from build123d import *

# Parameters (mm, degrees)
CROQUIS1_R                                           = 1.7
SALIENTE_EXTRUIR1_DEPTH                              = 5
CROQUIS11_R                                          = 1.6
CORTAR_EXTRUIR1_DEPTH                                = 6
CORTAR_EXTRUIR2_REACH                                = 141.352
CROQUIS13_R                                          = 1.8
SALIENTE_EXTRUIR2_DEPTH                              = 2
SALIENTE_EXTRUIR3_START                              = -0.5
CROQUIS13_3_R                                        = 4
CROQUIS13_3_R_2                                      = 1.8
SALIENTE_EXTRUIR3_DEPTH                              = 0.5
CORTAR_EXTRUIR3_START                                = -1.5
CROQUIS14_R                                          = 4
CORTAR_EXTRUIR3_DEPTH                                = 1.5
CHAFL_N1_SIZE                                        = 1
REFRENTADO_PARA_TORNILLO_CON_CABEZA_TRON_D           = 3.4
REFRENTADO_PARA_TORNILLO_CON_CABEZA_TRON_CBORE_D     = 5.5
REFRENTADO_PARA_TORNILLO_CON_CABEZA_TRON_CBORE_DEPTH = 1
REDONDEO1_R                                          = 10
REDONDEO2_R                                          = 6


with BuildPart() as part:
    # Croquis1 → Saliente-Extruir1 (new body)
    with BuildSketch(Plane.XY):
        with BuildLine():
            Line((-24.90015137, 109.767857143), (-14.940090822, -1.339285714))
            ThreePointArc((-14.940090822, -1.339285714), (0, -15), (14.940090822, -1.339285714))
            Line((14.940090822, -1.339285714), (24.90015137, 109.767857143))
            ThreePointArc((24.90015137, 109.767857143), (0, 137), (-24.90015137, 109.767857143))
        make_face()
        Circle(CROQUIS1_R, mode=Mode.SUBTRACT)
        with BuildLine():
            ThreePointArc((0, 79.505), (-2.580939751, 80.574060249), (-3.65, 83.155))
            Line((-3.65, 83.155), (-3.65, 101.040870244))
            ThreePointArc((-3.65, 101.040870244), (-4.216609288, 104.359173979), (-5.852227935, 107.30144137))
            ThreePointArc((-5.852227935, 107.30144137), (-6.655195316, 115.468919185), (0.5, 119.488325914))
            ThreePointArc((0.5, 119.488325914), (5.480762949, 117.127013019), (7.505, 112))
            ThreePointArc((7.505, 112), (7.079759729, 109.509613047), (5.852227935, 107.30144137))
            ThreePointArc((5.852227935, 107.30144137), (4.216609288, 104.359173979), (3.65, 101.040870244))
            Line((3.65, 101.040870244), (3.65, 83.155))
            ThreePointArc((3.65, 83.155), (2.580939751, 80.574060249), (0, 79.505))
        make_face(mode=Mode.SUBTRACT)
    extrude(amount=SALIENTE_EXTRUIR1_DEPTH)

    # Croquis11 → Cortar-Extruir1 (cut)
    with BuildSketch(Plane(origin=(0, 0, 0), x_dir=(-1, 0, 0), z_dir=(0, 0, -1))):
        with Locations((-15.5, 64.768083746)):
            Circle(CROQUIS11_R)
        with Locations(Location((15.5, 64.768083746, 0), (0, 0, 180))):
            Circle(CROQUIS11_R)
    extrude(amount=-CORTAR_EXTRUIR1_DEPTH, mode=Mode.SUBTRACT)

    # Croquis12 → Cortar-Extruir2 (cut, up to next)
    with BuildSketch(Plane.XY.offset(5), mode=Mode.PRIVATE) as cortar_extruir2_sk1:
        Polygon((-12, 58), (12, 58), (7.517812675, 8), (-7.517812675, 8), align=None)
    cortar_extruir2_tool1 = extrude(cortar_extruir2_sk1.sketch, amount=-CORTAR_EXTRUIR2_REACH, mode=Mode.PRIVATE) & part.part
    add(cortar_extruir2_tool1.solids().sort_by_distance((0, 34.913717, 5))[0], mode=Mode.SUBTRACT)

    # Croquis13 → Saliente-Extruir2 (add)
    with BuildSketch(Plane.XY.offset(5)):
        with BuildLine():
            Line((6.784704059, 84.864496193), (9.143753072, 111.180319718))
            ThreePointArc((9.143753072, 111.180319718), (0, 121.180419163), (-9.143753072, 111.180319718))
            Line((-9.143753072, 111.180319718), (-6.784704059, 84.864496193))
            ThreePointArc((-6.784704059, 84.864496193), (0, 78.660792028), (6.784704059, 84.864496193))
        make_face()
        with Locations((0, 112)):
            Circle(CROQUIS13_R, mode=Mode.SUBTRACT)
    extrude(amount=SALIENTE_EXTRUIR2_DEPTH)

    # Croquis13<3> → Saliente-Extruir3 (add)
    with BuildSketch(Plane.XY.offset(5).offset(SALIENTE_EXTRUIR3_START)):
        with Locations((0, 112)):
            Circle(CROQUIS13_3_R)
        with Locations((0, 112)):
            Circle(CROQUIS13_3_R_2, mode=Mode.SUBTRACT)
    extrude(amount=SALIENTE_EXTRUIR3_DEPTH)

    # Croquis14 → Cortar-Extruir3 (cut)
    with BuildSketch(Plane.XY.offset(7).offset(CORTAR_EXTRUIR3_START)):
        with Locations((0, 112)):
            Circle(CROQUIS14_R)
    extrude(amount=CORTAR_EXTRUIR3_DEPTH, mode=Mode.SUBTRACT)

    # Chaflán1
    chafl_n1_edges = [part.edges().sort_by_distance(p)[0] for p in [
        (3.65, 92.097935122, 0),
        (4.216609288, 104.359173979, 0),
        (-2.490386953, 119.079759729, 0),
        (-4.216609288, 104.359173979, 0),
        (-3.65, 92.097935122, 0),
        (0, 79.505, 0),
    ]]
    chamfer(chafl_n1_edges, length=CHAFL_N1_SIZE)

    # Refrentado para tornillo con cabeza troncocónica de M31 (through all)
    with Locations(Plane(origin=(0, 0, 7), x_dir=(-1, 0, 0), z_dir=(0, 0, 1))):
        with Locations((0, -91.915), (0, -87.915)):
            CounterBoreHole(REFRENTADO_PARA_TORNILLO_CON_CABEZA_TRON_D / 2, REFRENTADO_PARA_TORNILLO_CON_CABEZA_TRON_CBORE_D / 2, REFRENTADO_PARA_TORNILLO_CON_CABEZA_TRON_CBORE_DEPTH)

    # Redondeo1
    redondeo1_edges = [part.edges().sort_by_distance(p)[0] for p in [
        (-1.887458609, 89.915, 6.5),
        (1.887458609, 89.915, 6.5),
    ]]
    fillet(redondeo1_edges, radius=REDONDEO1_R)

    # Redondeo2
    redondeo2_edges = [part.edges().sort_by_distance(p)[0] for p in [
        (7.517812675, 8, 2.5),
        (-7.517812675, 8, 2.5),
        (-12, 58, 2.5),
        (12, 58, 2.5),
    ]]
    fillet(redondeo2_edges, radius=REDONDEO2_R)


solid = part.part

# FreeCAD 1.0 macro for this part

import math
import FreeCAD as App
import Part
import Sketcher


def edges_at(feature, points):
    """Names of the edges that pass closest to the given points."""
    edges = feature.Shape.Edges
    near = lambda p: min(range(len(edges)), key=lambda i: edges[i].distToShape(Part.Vertex(*p))[0])
    return sorted({f"Edge{near(p) + 1}" for p in points})


def add_polygon(sketch, points):
    """Adds a closed chain of lines whose ends are joined by coincident constraints."""
    first, n = sketch.GeometryCount, len(points)
    for a, b in zip(points, points[1:] + points[:1]):
        sketch.addGeometry(Part.LineSegment(App.Vector(*a, 0), App.Vector(*b, 0)), False)
    for i in range(n):
        sketch.addConstraint(Sketcher.Constraint("Coincident", first + i, 2, first + (i + 1) % n, 1))

doc = App.newDocument("Part")
body = doc.addObject("PartDesign::Body", "Body")

sketch1 = doc.addObject("Sketcher::SketchObject", "Sketch")
body.addObject(sketch1)
sketch1.AttachmentSupport = (doc.XY_Plane, [""])
sketch1.MapMode = "FlatFace"
sketch1.addGeometry(Part.LineSegment(App.Vector(-24.900151, 109.767857, 0), App.Vector(-14.940091, -1.339286, 0)), False)
sketch1.addGeometry(Part.ArcOfCircle(Part.Circle(App.Vector(0, 0, 0), App.Vector(0, 0, 1), 15), math.radians(-174.877484), math.radians(-5.122516)), False)
sketch1.addGeometry(Part.LineSegment(App.Vector(14.940091, -1.339286, 0), App.Vector(24.900151, 109.767857, 0)), False)
sketch1.addGeometry(Part.ArcOfCircle(Part.Circle(App.Vector(0, 112, 0), App.Vector(0, 0, 1), 25), math.radians(-5.122516), math.radians(185.122516)), False)
sketch1.addGeometry(Part.Circle(App.Vector(0, 0, 0), App.Vector(0, 0, 1), 1.7), False)
sketch1.addGeometry(Part.ArcOfCircle(Part.Circle(App.Vector(0, 83.155, 0), App.Vector(0, 0, 1), 3.65), math.radians(-90), math.radians(0)), False)
sketch1.addGeometry(Part.ArcOfCircle(Part.Circle(App.Vector(0, 83.155, 0), App.Vector(0, 0, 1), 3.65), math.radians(-180), math.radians(-90)), False)
sketch1.addGeometry(Part.LineSegment(App.Vector(-3.65, 83.155, 0), App.Vector(-3.65, 101.04087, 0)), False)
sketch1.addGeometry(Part.ArcOfCircle(Part.Circle(App.Vector(-13.65, 101.04087, 0), App.Vector(0, 0, 1), 10), math.radians(0), math.radians(38.759819)), False)
sketch1.addGeometry(Part.ArcOfCircle(Part.Circle(App.Vector(0, 112, 0), App.Vector(0, 0, 1), 7.505), math.radians(86.179997), math.radians(218.759819)), False)
sketch1.addGeometry(Part.ArcOfCircle(Part.Circle(App.Vector(0, 112, 0), App.Vector(0, 0, 1), 7.505), math.radians(0), math.radians(86.179997)), False)
sketch1.addGeometry(Part.ArcOfCircle(Part.Circle(App.Vector(0, 112, 0), App.Vector(0, 0, 1), 7.505), math.radians(-38.759819), math.radians(0)), False)
sketch1.addGeometry(Part.ArcOfCircle(Part.Circle(App.Vector(13.65, 101.04087, 0), App.Vector(0, 0, 1), 10), math.radians(141.240181), math.radians(180)), False)
sketch1.addGeometry(Part.LineSegment(App.Vector(3.65, 101.04087, 0), App.Vector(3.65, 83.155, 0)), False)
sketch1.addConstraint(Sketcher.Constraint("Tangent", 0, 2, 1, 1))
sketch1.addConstraint(Sketcher.Constraint("Tangent", 1, 2, 2, 1))
sketch1.addConstraint(Sketcher.Constraint("Tangent", 2, 2, 3, 1))
sketch1.addConstraint(Sketcher.Constraint("Tangent", 3, 2, 0, 1))
sketch1.addConstraint(Sketcher.Constraint("Tangent", 5, 1, 6, 2))
sketch1.addConstraint(Sketcher.Constraint("Tangent", 6, 1, 7, 1))
sketch1.addConstraint(Sketcher.Constraint("Tangent", 7, 2, 8, 1))
sketch1.addConstraint(Sketcher.Constraint("Tangent", 8, 2, 9, 2))
sketch1.addConstraint(Sketcher.Constraint("Tangent", 9, 1, 10, 2))
sketch1.addConstraint(Sketcher.Constraint("Tangent", 10, 1, 11, 2))
sketch1.addConstraint(Sketcher.Constraint("Tangent", 11, 1, 12, 1))
sketch1.addConstraint(Sketcher.Constraint("Tangent", 12, 2, 13, 1))
sketch1.addConstraint(Sketcher.Constraint("Tangent", 13, 2, 5, 2))
sketch1.addConstraint(Sketcher.Constraint("Vertical", 7))
sketch1.addConstraint(Sketcher.Constraint("Vertical", 13))
sketch1.addConstraint(Sketcher.Constraint("Coincident", 1, 3, -1, 1))
sketch1.addConstraint(Sketcher.Constraint("Coincident", 4, 3, -1, 1))
sketch1.addConstraint(Sketcher.Constraint("Coincident", 9, 3, 3, 3))
sketch1.addConstraint(Sketcher.Constraint("Coincident", 11, 3, 3, 3))
sketch1.addConstraint(Sketcher.Constraint("Equal", 5, 6))
sketch1.addConstraint(Sketcher.Constraint("Equal", 8, 12))
sketch1.addConstraint(Sketcher.Constraint("Symmetric", 8, 3, 12, 3, -2))
sketch1.addConstraint(Sketcher.Constraint("PointOnObject", 5, 1, -2))
sketch1.addConstraint(Sketcher.Constraint("Horizontal", 11, 3, 10, 1))
sketch1.addConstraint(Sketcher.Constraint("Radius", 1, 15.0))
sketch1.addConstraint(Sketcher.Constraint("Radius", 3, 25.0))
sketch1.addConstraint(Sketcher.Constraint("Radius", 8, 10.0))
sketch1.addConstraint(Sketcher.Constraint("Diameter", 4, 3.4))
sketch1.addConstraint(Sketcher.Constraint("Radius", 5, 3.65))
sketch1.addConstraint(Sketcher.Constraint("DistanceY", -1, 1, 3, 3, 112.0))
sketch1.addConstraint(Sketcher.Constraint("Radius", 9, 7.505))
sketch1.addConstraint(Sketcher.Constraint("DistanceX", -1, 1, 9, 1, 0.5))
sketch1.addConstraint(Sketcher.Constraint("DistanceY", -1, 1, 5, 3, 83.155))
pad1 = doc.addObject("PartDesign::Pad", "Pad")
body.addObject(pad1)
pad1.Profile = sketch1
pad1.Length = 5

sketch2 = doc.addObject("Sketcher::SketchObject", "Sketch001")
body.addObject(sketch2)
sketch2.AttachmentSupport = (doc.XY_Plane, [""])
sketch2.MapMode = "FlatFace"
sketch2.addGeometry(Part.Circle(App.Vector(15.5, 64.768084, 0), App.Vector(0, 0, 1), 1.6), False)
sketch2.addGeometry(Part.Circle(App.Vector(-15.5, 64.768084, 0), App.Vector(0, 0, 1), 1.6), False)
sketch2.addConstraint(Sketcher.Constraint("Equal", 0, 1))
sketch2.addConstraint(Sketcher.Constraint("Symmetric", 0, 3, 1, 3, -2))
sketch2.addConstraint(Sketcher.Constraint("Diameter", 0, 3.2))
sketch2.addConstraint(Sketcher.Constraint("DistanceX", 1, 3, 0, 3, 31.0))
sketch2.addConstraint(Sketcher.Constraint("DistanceY", -1, 1, 0, 3, 64.768084))
pocket1 = doc.addObject("PartDesign::Pocket", "Pocket")
body.addObject(pocket1)
pocket1.Profile = sketch2
pocket1.Length = 6
pocket1.Reversed = True

sketch3 = doc.addObject("Sketcher::SketchObject", "Sketch002")
body.addObject(sketch3)
sketch3.AttachmentSupport = (doc.XY_Plane, [""])
sketch3.MapMode = "FlatFace"
sketch3.AttachmentOffset = App.Placement(App.Vector(0, 0, 5), App.Rotation())
add_polygon(sketch3, [(12, 58), (-12, 58), (-7.517813, 8), (7.517813, 8)])
sketch3.addConstraint(Sketcher.Constraint("Horizontal", 0))
sketch3.addConstraint(Sketcher.Constraint("Horizontal", 2))
sketch3.addConstraint(Sketcher.Constraint("Equal", 1, 3))
sketch3.addConstraint(Sketcher.Constraint("DistanceX", 0, 2, 0, 1, 24.0))
sketch3.addConstraint(Sketcher.Constraint("DistanceX", 0, 2, -1, 1, 12.0))
sketch3.addConstraint(Sketcher.Constraint("DistanceY", -1, 1, 0, 2, 58.0))
sketch3.addConstraint(Sketcher.Constraint("DistanceY", -1, 1, 1, 2, 8.0))
sketch3.addConstraint(Sketcher.Constraint("Distance", 1, 50.200498))
pocket2 = doc.addObject("PartDesign::Pocket", "Pocket001")
body.addObject(pocket2)
pocket2.Profile = sketch3
pocket2.Type = "UpToFirst"

sketch4 = doc.addObject("Sketcher::SketchObject", "Sketch003")
body.addObject(sketch4)
sketch4.AttachmentSupport = (doc.XY_Plane, [""])
sketch4.MapMode = "FlatFace"
sketch4.AttachmentOffset = App.Placement(App.Vector(0, 0, 5), App.Rotation())
sketch4.addGeometry(Part.LineSegment(App.Vector(6.784704, 84.864496, 0), App.Vector(9.143753, 111.18032, 0)), False)
sketch4.addGeometry(Part.ArcOfCircle(Part.Circle(App.Vector(0, 112, 0), App.Vector(0, 0, 1), 9.180419), math.radians(-5.122516), math.radians(185.122516)), False)
sketch4.addGeometry(Part.LineSegment(App.Vector(-9.143753, 111.18032, 0), App.Vector(-6.784704, 84.864496, 0)), False)
sketch4.addGeometry(Part.ArcOfCircle(Part.Circle(App.Vector(0, 85.472702, 0), App.Vector(0, 0, 1), 6.81191), math.radians(-174.877484), math.radians(-5.122516)), False)
sketch4.addGeometry(Part.Circle(App.Vector(0, 112, 0), App.Vector(0, 0, 1), 1.8), False)
sketch4.addConstraint(Sketcher.Constraint("Tangent", 0, 2, 1, 1))
sketch4.addConstraint(Sketcher.Constraint("Tangent", 1, 2, 2, 1))
sketch4.addConstraint(Sketcher.Constraint("Tangent", 2, 2, 3, 1))
sketch4.addConstraint(Sketcher.Constraint("Tangent", 3, 2, 0, 1))
sketch4.addConstraint(Sketcher.Constraint("Coincident", 4, 3, 1, 3))
sketch4.addConstraint(Sketcher.Constraint("Symmetric", 0, 2, 1, 2, -2))
sketch4.addConstraint(Sketcher.Constraint("Diameter", 4, 3.6))
sketch4.addConstraint(Sketcher.Constraint("DistanceY", -1, 1, 1, 3, 112.0))
sketch4.addConstraint(Sketcher.Constraint("Radius", 1, 9.180419))
sketch4.addConstraint(Sketcher.Constraint("Radius", 3, 6.81191))
sketch4.addConstraint(Sketcher.Constraint("Distance", 0, 26.421349))
pad2 = doc.addObject("PartDesign::Pad", "Pad001")
body.addObject(pad2)
pad2.Profile = sketch4
pad2.Length = 2

sketch5 = doc.addObject("Sketcher::SketchObject", "Sketch004")
body.addObject(sketch5)
sketch5.AttachmentSupport = (doc.XY_Plane, [""])
sketch5.MapMode = "FlatFace"
sketch5.AttachmentOffset = App.Placement(App.Vector(0, 0, 4.5), App.Rotation())
sketch5.addGeometry(Part.Circle(App.Vector(0, 112, 0), App.Vector(0, 0, 1), 4), False)
sketch5.addGeometry(Part.Circle(App.Vector(0, 112, 0), App.Vector(0, 0, 1), 1.8), False)
sketch5.addConstraint(Sketcher.Constraint("Coincident", 1, 3, 0, 3))
sketch5.addConstraint(Sketcher.Constraint("PointOnObject", 0, 3, -2))
sketch5.addConstraint(Sketcher.Constraint("Diameter", 0, 8.0))
sketch5.addConstraint(Sketcher.Constraint("Diameter", 1, 3.6))
sketch5.addConstraint(Sketcher.Constraint("DistanceY", -1, 1, 0, 3, 112.0))
pad3 = doc.addObject("PartDesign::Pad", "Pad002")
body.addObject(pad3)
pad3.Profile = sketch5
pad3.Length = 0.5

sketch6 = doc.addObject("Sketcher::SketchObject", "Sketch005")
body.addObject(sketch6)
sketch6.AttachmentSupport = (doc.XY_Plane, [""])
sketch6.MapMode = "FlatFace"
sketch6.AttachmentOffset = App.Placement(App.Vector(0, 0, 5.5), App.Rotation())
sketch6.addGeometry(Part.Circle(App.Vector(0, 112, 0), App.Vector(0, 0, 1), 4), False)
sketch6.addConstraint(Sketcher.Constraint("PointOnObject", 0, 3, -2))
sketch6.addConstraint(Sketcher.Constraint("Diameter", 0, 8.0))
sketch6.addConstraint(Sketcher.Constraint("DistanceY", -1, 1, 0, 3, 112.0))
pocket3 = doc.addObject("PartDesign::Pocket", "Pocket002")
body.addObject(pocket3)
pocket3.Profile = sketch6
pocket3.Length = 1.5
pocket3.Reversed = True
doc.recompute()

chamfer = doc.addObject("PartDesign::Chamfer", "Chamfer")
body.addObject(chamfer)
chamfer.Base = (pocket3, edges_at(pocket3, [
    (3.65, 92.098, 0),
    (4.217, 104.359, 0),
    (-6.655, 115.469, 0),
    (-4.217, 104.359, 0),
    (-3.65, 92.098, 0),
    (0, 79.505, 2.5),
]))
chamfer.Size = 1

sketch7 = doc.addObject("Sketcher::SketchObject", "Sketch006")
body.addObject(sketch7)
sketch7.AttachmentSupport = (doc.XY_Plane, [""])
sketch7.MapMode = "FlatFace"
sketch7.AttachmentOffset = App.Placement(App.Vector(0, 0, 7), App.Rotation())
sketch7.addGeometry(Part.Circle(App.Vector(0, 91.915, 0), App.Vector(0, 0, 1), 1.7), False)
sketch7.addGeometry(Part.Circle(App.Vector(0, 87.915, 0), App.Vector(0, 0, 1), 1.7), False)
sketch7.addConstraint(Sketcher.Constraint("Equal", 0, 1))
sketch7.addConstraint(Sketcher.Constraint("PointOnObject", 0, 3, -2))
sketch7.addConstraint(Sketcher.Constraint("PointOnObject", 1, 3, -2))
sketch7.addConstraint(Sketcher.Constraint("Diameter", 0, 3.4))
sketch7.addConstraint(Sketcher.Constraint("DistanceY", 1, 3, 0, 3, 4.0))
sketch7.addConstraint(Sketcher.Constraint("DistanceY", -1, 1, 0, 3, 91.915))
doc.recompute()
hole = doc.addObject("PartDesign::Hole", "Hole")
body.addObject(hole)
hole.Profile = sketch7
hole.ThreadType = "None"
hole.Diameter = 3.4
hole.DepthType = "ThroughAll"
hole.HoleCutType = "Counterbore"
hole.HoleCutDiameter = 5.5
hole.HoleCutDepth = 1
doc.recompute()

fillet = doc.addObject("PartDesign::Fillet", "Fillet")
body.addObject(fillet)
fillet.Base = (hole, edges_at(hole, [(-1.887, 89.915, 6.5), (1.887, 89.915, 6.5)]))
fillet.Radius = 10
doc.recompute()

fillet2 = doc.addObject("PartDesign::Fillet", "Fillet001")
body.addObject(fillet2)
fillet2.Base = (fillet, edges_at(fillet, [
    (7.518, 8, 2.5),
    (-7.518, 8, 2.5),
    (-12, 58, 2.5),
    (12, 58, 2.5),
]))
fillet2.Radius = 6

doc.recompute()
